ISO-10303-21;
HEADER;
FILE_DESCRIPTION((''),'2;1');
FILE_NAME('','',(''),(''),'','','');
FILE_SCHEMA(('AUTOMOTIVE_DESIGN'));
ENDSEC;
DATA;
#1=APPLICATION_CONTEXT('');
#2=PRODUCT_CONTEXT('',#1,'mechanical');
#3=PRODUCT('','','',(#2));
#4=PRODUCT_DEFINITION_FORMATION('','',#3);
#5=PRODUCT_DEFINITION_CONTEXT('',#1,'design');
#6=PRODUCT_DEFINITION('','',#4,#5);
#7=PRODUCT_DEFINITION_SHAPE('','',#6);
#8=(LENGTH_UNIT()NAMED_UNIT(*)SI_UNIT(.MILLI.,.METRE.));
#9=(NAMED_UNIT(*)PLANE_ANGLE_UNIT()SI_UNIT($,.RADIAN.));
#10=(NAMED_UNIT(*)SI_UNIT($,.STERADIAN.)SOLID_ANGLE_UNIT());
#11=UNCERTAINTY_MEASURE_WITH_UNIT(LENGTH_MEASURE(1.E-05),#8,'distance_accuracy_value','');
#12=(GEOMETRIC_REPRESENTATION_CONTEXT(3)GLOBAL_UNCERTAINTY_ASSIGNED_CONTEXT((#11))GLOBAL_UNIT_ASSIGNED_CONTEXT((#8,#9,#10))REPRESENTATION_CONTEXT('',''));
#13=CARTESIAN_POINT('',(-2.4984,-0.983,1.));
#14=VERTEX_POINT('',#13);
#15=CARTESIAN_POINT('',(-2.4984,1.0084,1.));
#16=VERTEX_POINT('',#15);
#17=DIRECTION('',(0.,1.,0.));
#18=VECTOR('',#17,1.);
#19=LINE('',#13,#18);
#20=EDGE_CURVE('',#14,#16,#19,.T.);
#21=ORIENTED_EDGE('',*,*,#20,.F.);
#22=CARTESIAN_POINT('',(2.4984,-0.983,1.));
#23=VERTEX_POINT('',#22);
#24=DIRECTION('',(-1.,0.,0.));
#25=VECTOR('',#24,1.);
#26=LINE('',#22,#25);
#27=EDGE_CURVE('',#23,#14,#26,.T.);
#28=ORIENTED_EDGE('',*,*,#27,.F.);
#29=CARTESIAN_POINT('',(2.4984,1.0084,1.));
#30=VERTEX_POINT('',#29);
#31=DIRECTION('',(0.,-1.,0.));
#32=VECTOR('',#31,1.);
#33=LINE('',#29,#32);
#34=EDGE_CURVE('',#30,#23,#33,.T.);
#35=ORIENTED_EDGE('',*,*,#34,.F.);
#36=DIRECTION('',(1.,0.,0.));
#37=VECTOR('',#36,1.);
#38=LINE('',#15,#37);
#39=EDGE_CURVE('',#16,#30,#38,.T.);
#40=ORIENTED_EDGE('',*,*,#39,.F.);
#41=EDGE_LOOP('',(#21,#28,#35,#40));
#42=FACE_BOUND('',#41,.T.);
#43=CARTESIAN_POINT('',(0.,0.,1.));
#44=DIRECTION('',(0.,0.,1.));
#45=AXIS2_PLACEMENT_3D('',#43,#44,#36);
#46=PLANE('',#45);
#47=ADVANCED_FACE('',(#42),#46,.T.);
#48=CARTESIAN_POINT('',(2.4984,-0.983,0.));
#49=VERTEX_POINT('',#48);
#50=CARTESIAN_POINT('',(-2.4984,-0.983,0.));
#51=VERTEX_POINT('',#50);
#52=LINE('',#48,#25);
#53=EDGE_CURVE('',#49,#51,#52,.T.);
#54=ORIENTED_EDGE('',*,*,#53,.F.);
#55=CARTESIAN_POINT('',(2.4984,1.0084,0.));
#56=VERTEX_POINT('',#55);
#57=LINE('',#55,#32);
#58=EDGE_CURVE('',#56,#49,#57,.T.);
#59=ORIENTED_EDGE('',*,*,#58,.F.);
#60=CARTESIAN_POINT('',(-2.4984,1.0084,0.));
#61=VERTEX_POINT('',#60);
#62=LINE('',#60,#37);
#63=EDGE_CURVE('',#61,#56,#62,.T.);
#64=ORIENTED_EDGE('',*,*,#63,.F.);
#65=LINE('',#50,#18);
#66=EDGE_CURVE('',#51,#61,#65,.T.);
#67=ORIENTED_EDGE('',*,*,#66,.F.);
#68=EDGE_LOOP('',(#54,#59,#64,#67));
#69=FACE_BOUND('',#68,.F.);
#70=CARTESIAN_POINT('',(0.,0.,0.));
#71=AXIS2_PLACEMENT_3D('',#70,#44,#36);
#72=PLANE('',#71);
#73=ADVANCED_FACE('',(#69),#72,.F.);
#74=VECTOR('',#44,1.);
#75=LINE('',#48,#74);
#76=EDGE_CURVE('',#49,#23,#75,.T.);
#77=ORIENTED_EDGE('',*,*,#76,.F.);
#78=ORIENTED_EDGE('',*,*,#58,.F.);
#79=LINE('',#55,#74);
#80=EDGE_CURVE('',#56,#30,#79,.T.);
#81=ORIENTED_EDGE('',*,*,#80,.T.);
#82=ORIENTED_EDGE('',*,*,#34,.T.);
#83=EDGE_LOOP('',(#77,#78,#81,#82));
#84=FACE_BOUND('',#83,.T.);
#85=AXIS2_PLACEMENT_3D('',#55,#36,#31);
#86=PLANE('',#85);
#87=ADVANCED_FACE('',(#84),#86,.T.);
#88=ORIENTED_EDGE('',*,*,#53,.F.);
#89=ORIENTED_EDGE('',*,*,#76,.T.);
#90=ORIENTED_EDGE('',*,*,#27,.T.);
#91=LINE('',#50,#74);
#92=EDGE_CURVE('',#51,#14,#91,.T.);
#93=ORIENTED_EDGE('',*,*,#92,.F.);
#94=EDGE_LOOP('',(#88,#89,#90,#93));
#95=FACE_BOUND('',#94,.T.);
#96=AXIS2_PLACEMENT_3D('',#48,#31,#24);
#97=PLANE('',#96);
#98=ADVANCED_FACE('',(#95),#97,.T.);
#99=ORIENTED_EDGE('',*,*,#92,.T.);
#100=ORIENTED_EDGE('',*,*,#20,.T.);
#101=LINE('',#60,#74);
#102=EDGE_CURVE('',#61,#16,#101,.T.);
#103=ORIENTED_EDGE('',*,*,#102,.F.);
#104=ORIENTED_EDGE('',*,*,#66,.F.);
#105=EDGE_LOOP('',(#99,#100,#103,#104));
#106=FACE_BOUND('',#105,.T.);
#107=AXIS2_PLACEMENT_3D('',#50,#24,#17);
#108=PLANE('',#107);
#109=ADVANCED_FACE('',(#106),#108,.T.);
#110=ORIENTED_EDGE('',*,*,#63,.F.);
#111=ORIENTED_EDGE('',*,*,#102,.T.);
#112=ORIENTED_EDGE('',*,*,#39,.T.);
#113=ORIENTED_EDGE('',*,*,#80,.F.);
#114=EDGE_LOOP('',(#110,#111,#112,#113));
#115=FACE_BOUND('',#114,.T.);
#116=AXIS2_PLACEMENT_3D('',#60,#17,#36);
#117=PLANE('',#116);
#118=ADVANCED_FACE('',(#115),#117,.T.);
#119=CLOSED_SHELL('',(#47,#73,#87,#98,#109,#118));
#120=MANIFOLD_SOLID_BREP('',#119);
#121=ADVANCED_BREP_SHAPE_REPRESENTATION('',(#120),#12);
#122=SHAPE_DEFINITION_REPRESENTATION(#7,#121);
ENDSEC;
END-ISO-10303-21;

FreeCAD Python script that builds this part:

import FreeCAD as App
import Part
import Sketcher

V = App.Vector


def add_polygon(sketch, points):
    """Adds a closed chain of lines whose ends are joined by coincident constraints."""
    first, n = sketch.GeometryCount, len(points)
    for a, b in zip(points, points[1:] + points[:1]):
        sketch.addGeometry(Part.LineSegment(App.Vector(*a, 0), App.Vector(*b, 0)), False)
    for i in range(n):
        sketch.addConstraint(Sketcher.Constraint("Coincident", first + i, 2, first + (i + 1) % n, 1))

doc = App.newDocument("Part")
body = doc.addObject("PartDesign::Body", "Body")

# Sketch on XY plane
sketch1 = doc.addObject("Sketcher::SketchObject", "Sketch")
body.addObject(sketch1)
sketch1.AttachmentSupport = (doc.XY_Plane, [""])
sketch1.MapMode = "FlatFace"
add_polygon(sketch1, [(2.4984, 1.0084), (-2.4984, 1.0084), (-2.4984, -0.983), (2.4984, -0.983)])  # lines 0-3
sketch1.addConstraint(Sketcher.Constraint("Horizontal", 0))
sketch1.addConstraint(Sketcher.Constraint("Vertical", 1))
sketch1.addConstraint(Sketcher.Constraint("Horizontal", 2))
sketch1.addConstraint(Sketcher.Constraint("Vertical", 3))
sketch1.addConstraint(Sketcher.Constraint("DistanceX", 0, 2, 0, 1, 4.9968))
sketch1.addConstraint(Sketcher.Constraint("DistanceY", 1, 2, 1, 1, 1.9914))
sketch1.addConstraint(Sketcher.Constraint("DistanceY", 1, 2, -1, 1, 0.983))
sketch1.addConstraint(Sketcher.Constraint("DistanceX", 0, 2, -1, 1, 2.4984))
pad1 = doc.addObject("PartDesign::Pad", "Pad")
body.addObject(pad1)
pad1.Profile = sketch1
pad1.Length = 1

doc.recompute()
